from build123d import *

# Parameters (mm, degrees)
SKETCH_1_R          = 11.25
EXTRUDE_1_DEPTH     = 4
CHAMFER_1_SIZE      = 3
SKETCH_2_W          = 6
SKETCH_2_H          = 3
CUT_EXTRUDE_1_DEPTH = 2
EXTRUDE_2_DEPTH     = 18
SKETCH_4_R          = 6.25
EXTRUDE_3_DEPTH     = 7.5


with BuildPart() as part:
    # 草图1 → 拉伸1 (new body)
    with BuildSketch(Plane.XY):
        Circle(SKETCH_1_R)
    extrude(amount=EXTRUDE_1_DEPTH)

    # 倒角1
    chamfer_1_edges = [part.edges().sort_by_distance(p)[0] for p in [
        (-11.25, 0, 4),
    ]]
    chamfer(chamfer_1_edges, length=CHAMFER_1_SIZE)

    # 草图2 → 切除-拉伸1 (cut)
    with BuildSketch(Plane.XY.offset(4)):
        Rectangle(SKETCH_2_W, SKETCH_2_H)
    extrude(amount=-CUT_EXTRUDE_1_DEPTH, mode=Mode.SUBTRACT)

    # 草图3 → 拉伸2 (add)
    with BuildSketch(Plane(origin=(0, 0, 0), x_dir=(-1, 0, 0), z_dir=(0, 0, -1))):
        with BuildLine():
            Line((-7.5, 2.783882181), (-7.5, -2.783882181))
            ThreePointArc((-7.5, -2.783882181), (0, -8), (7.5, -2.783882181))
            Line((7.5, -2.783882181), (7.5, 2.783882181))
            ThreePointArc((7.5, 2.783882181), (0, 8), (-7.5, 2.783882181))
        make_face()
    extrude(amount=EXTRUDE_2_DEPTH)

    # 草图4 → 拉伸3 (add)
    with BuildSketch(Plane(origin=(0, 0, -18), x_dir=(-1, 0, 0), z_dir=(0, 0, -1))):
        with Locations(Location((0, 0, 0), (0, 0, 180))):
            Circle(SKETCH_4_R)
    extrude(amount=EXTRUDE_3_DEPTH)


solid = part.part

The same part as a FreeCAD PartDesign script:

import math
import FreeCAD as App
import Part
import Sketcher
Q = App.Units.Quantity


def edges_at(feature, points):
    """Names of the edges that pass closest to the given points."""
    edges = feature.Shape.Edges
    near = lambda p: min(range(len(edges)), key=lambda i: edges[i].distToShape(Part.Vertex(*p))[0])
    return sorted({f"Edge{near(p) + 1}" for p in points})


def add_polygon(sketch, points):
    """Adds a closed chain of lines whose ends are joined by coincident constraints."""
    first, n = sketch.GeometryCount, len(points)
    for a, b in zip(points, points[1:] + points[:1]):
        sketch.addGeometry(Part.LineSegment(App.Vector(*a, 0), App.Vector(*b, 0)), False)
    for i in range(n):
        sketch.addConstraint(Sketcher.Constraint("Coincident", first + i, 2, first + (i + 1) % n, 1))

doc = App.newDocument("Part")
body = doc.addObject("PartDesign::Body", "Body")

sketch1 = body.newObject("Sketcher::SketchObject", "Sketch")
sketch1.AttachmentSupport = (doc.getObject("XY_Plane"), [""])
sketch1.MapMode = "FlatFace"
sketch1.addGeometry(Part.Circle(App.Vector(0, 0, 0), App.Vector(0, 0, 1), 11), False)
sketch1.addConstraint(Sketcher.Constraint("Coincident", 0, 3, -1, 1))
sketch1.addConstraint(Sketcher.Constraint("Diameter", 0, Q("22.5 mm")))
pad1 = body.newObject("PartDesign::Pad", "Pad")
pad1.Profile = sketch1
pad1.Length = 4
doc.recompute()

chamfer = body.newObject("PartDesign::Chamfer", "Chamfer")
chamfer.Base = (pad1, edges_at(pad1, [(-11.25, 0, 4)]))
chamfer.Size = 3

sketch2 = body.newObject("Sketcher::SketchObject", "Sketch001")
sketch2.AttachmentSupport = (doc.getObject("XY_Plane"), [""])
sketch2.MapMode = "FlatFace"
sketch2.AttachmentOffset = App.Placement(App.Vector(0, 0, 4), App.Rotation())
add_polygon(sketch2, [(-3, 1.5), (-3, -1.5), (3, -1.5), (3, 1.5)])
sketch2.addConstraint(Sketcher.Constraint("Vertical", 0))
sketch2.addConstraint(Sketcher.Constraint("Horizontal", 1))
sketch2.addConstraint(Sketcher.Constraint("Vertical", 2))
sketch2.addConstraint(Sketcher.Constraint("Horizontal", 3))
sketch2.addConstraint(Sketcher.Constraint("Symmetric", 0, 2, 2, 2, -1, 1))
sketch2.addConstraint(Sketcher.Constraint("DistanceX", 1, 1, 1, 2, Q("6 mm")))
sketch2.addConstraint(Sketcher.Constraint("DistanceY", 0, 2, 0, 1, Q("3 mm")))
pocket1 = body.newObject("PartDesign::Pocket", "Pocket")
pocket1.Profile = sketch2
pocket1.Length = 2

sketch3 = body.newObject("Sketcher::SketchObject", "Sketch002")
sketch3.AttachmentSupport = (doc.getObject("XY_Plane"), [""])
sketch3.MapMode = "FlatFace"
sketch3.addGeometry(Part.LineSegment(App.Vector(8, 3, 0), App.Vector(8, -3, 0)), False)
sketch3.addGeometry(Part.ArcOfCircle(Part.Circle(App.Vector(0, 0, 0), App.Vector(0, 0, 1), 8), math.radians(-160), math.radians(-20)), False)
sketch3.addGeometry(Part.LineSegment(App.Vector(-8, -3, 0), App.Vector(-8, 3, 0)), False)
sketch3.addGeometry(Part.ArcOfCircle(Part.Circle(App.Vector(0, 0, 0), App.Vector(0, 0, 1), 8), math.radians(20), math.radians(160)), False)
sketch3.addConstraint(Sketcher.Constraint("Coincident", 0, 2, 1, 2))
sketch3.addConstraint(Sketcher.Constraint("Coincident", 1, 1, 2, 1))
sketch3.addConstraint(Sketcher.Constraint("Coincident", 2, 2, 3, 2))
sketch3.addConstraint(Sketcher.Constraint("Coincident", 3, 1, 0, 1))
sketch3.addConstraint(Sketcher.Constraint("Vertical", 0))
sketch3.addConstraint(Sketcher.Constraint("Vertical", 2))
sketch3.addConstraint(Sketcher.Constraint("Coincident", 1, 3, -1, 1))
sketch3.addConstraint(Sketcher.Constraint("Coincident", 3, 3, -1, 1))
sketch3.addConstraint(Sketcher.Constraint("Equal", 1, 3))
sketch3.addConstraint(Sketcher.Constraint("Horizontal", 0, 2, 1, 1))
sketch3.addConstraint(Sketcher.Constraint("Radius", 1, Q("8 mm")))
sketch3.addConstraint(Sketcher.Constraint("DistanceX", 1, 1, 0, 2, Q("15 mm")))
pad2 = body.newObject("PartDesign::Pad", "Pad001")
pad2.Profile = sketch3
pad2.Length = 18
pad2.Reversed = True

sketch4 = body.newObject("Sketcher::SketchObject", "Sketch003")
sketch4.AttachmentSupport = (doc.getObject("XY_Plane"), [""])
sketch4.MapMode = "FlatFace"
sketch4.AttachmentOffset = App.Placement(App.Vector(0, 0, -18), App.Rotation())
sketch4.addGeometry(Part.Circle(App.Vector(0, 0, 0), App.Vector(0, 0, 1), 6), False)
sketch4.addConstraint(Sketcher.Constraint("Coincident", 0, 3, -1, 1))
sketch4.addConstraint(Sketcher.Constraint("Diameter", 0, Q("12.5 mm")))
pad3 = body.newObject("PartDesign::Pad", "Pad002")
pad3.Profile = sketch4
pad3.Length = 7.5
pad3.Reversed = True

doc.recompute()
